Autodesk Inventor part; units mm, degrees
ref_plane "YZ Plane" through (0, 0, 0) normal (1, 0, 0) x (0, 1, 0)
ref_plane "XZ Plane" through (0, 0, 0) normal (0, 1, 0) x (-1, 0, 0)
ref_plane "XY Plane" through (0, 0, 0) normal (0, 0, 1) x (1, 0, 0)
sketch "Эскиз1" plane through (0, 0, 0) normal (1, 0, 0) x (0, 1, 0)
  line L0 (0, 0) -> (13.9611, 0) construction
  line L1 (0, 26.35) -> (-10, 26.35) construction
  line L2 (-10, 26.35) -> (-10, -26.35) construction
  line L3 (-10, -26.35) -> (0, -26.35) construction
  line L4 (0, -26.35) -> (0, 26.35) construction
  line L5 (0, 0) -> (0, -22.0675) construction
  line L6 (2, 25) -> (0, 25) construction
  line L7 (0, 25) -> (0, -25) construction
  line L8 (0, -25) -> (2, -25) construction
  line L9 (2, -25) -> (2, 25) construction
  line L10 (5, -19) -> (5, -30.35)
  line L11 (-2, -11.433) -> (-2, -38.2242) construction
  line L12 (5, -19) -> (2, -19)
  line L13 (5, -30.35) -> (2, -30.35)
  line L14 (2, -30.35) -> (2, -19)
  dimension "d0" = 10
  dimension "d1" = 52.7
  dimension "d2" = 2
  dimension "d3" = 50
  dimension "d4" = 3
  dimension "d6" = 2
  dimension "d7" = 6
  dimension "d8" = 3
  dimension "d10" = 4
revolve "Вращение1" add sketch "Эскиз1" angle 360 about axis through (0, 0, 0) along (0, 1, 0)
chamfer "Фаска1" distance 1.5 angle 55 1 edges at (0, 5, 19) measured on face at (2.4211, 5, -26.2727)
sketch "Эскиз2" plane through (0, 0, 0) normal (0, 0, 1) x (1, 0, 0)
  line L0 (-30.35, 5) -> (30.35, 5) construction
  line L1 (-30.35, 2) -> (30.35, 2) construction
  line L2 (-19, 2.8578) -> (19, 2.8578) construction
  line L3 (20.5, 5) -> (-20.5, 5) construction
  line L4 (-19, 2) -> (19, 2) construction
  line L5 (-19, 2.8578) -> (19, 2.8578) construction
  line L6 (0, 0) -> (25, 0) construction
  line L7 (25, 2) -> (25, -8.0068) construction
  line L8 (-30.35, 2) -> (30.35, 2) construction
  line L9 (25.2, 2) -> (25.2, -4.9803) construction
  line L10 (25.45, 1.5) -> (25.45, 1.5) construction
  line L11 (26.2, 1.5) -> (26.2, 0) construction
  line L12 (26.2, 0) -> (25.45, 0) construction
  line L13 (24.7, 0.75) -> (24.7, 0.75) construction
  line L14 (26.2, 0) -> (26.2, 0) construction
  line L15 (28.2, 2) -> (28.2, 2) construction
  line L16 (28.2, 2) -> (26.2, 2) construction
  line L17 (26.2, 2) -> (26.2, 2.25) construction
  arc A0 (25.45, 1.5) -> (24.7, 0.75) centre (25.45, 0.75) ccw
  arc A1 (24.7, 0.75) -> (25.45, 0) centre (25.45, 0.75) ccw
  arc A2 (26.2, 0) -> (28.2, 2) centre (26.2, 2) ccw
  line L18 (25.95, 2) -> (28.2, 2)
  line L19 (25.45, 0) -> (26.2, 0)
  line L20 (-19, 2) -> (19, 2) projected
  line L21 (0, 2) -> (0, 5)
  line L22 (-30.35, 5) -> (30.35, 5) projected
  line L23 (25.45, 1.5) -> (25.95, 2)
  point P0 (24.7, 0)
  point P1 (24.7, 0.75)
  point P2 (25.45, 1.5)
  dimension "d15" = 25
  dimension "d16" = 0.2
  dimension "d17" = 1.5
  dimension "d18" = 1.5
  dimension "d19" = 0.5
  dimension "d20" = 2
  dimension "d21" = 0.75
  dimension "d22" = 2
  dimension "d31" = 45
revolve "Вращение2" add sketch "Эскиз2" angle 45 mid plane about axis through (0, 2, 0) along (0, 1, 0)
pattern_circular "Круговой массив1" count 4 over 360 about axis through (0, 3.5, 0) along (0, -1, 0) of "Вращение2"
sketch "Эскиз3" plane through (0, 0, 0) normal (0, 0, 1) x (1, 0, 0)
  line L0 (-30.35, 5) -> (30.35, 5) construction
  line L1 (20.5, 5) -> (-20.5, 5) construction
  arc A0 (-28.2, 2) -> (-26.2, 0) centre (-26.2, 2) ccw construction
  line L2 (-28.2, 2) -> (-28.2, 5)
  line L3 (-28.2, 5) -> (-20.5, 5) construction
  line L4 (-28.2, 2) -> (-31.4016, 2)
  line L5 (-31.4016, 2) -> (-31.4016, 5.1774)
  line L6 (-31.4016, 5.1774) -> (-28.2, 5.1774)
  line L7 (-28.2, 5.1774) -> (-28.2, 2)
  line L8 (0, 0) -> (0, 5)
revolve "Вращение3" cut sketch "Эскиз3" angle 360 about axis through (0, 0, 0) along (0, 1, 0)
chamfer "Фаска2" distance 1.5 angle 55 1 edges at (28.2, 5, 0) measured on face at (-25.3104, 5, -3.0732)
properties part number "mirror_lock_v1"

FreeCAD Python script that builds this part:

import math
import FreeCAD as App
import Part
import Sketcher
from FreeCAD import Vector
Q = App.Units.Quantity


def edges_at(feature, points):
    """Names of the edges that pass closest to the given points."""
    edges = feature.Shape.Edges
    near = lambda p: min(range(len(edges)), key=lambda i: edges[i].distToShape(Part.Vertex(*p))[0])
    return sorted({f"Edge{near(p) + 1}" for p in points})


def add_polygon(sketch, points):
    """Adds a closed chain of lines whose ends are joined by coincident constraints."""
    first, n = sketch.GeometryCount, len(points)
    for a, b in zip(points, points[1:] + points[:1]):
        sketch.addGeometry(Part.LineSegment(App.Vector(*a, 0), App.Vector(*b, 0)), False)
    for i in range(n):
        sketch.addConstraint(Sketcher.Constraint("Coincident", first + i, 2, first + (i + 1) % n, 1))

doc = App.newDocument("Part")
params = doc.addObject("Spreadsheet::Sheet", "Params")
for row, (alias, value) in enumerate([
    ("sketch1_width", "3 mm"),
    ("sketch1_height", "11.35 mm"),
    ("revolution_angle", "360 deg"),
    ("chamfer_size", "1.5 mm"),
    ("sketch2_radius", "2 mm"),
    ("sketch2_radius2", "0.75 mm"),
    ("sketch2_width", "0.75 mm"),
    ("revolution2_angle", "45 deg"),
    ("groove_angle", "360 deg"),
    ("chamfer2_size", "1.5 mm"),
], start=1):
    params.set(f"A{row}", alias)
    params.set(f"B{row}", "=" + value)
    params.setAlias(f"B{row}", alias)

body = doc.addObject("PartDesign::Body", "Body")

# Sketch on YZ plane
sketch1 = body.newObject("Sketcher::SketchObject", "Sketch")
sketch1.AttachmentSupport = (doc.getObject("YZ_Plane"), [""])
sketch1.MapMode = "FlatFace"
add_polygon(sketch1, [(5, -30.4), (5, -19), (2, -19), (2, -30.4)])  # lines 0-3
sketch1.addConstraint(Sketcher.Constraint("Vertical", 0))
sketch1.addConstraint(Sketcher.Constraint("Horizontal", 1))
sketch1.addConstraint(Sketcher.Constraint("Vertical", 2))
sketch1.addConstraint(Sketcher.Constraint("Horizontal", 3))
sketch1.addConstraint(Sketcher.Constraint("DistanceX", 1, 2, 1, 1, Q("3 mm")))
sketch1.addConstraint(Sketcher.Constraint("DistanceX", -1, 1, 1, 2, Q("2 mm")))
sketch1.addConstraint(Sketcher.Constraint("DistanceY", 0, 2, -1, 1, Q("19 mm")))
sketch1.addConstraint(Sketcher.Constraint("DistanceY", 0, 1, 0, 2, Q("11.35 mm")))
sketch1.setExpression("Constraints[8]", "Params.sketch1_width")
sketch1.setExpression("Constraints[11]", "Params.sketch1_height")
revolution = body.newObject("PartDesign::Revolution", "Revolution")
revolution.Profile = sketch1
revolution.ReferenceAxis = (sketch1, ["H_Axis"])
revolution.setExpression("Angle", "Params.revolution_angle")
doc.recompute()

chamfer = body.newObject("PartDesign::Chamfer", "Chamfer")
chamfer.Base = (revolution, edges_at(revolution, [(0, 5, 19)]))
chamfer.ChamferType = "Distance and Angle"
chamfer.setExpression("Size", "Params.chamfer_size")
chamfer.Angle = 55

# Sketch on XY plane
sketch2 = body.newObject("Sketcher::SketchObject", "Sketch001")
sketch2.AttachmentSupport = (doc.getObject("XY_Plane"), [""])
sketch2.MapMode = "FlatFace"
sketch2.addGeometry(Part.LineSegment(Vector(25.9, 2, 0), Vector(25.4, 1.5, 0)), False)
sketch2.addGeometry(Part.ArcOfCircle(Part.Circle(Vector(25.4, 0.8, 0), Vector(0, 0, 1), 0.8), math.radians(90), math.radians(270)), False)
sketch2.addGeometry(Part.LineSegment(Vector(25.4, 0, 0), Vector(26.2, 0, 0)), False)
sketch2.addGeometry(Part.ArcOfCircle(Part.Circle(Vector(26.2, 2, 0), Vector(0, 0, 1), 2), math.radians(-90), math.radians(0)), False)
sketch2.addGeometry(Part.LineSegment(Vector(28.2, 2, 0), Vector(25.9, 2, 0)), False)
sketch2.addConstraint(Sketcher.Constraint("Coincident", 0, 2, 1, 1))
sketch2.addConstraint(Sketcher.Constraint("Tangent", 1, 2, 2, 1))
sketch2.addConstraint(Sketcher.Constraint("Tangent", 2, 2, 3, 1))
sketch2.addConstraint(Sketcher.Constraint("Coincident", 3, 2, 4, 1))
sketch2.addConstraint(Sketcher.Constraint("Coincident", 4, 2, 0, 1))
sketch2.addConstraint(Sketcher.Constraint("Horizontal", 2))
sketch2.addConstraint(Sketcher.Constraint("Horizontal", 4))
sketch2.addConstraint(Sketcher.Constraint("PointOnObject", 1, 2, -1))
sketch2.addConstraint(Sketcher.Constraint("Vertical", 1, 3, 0, 2))
sketch2.addConstraint(Sketcher.Constraint("Radius", 3, Q("2 mm")))
sketch2.addConstraint(Sketcher.Constraint("Radius", 1, Q("0.75 mm")))
sketch2.addConstraint(Sketcher.Constraint("DistanceY", -1, 1, 3, 2, Q("2 mm")))
sketch2.addConstraint(Sketcher.Constraint("DistanceX", 2, 1, 2, 2, Q("0.75 mm")))
sketch2.addConstraint(Sketcher.Constraint("DistanceX", 0, 2, 4, 2, Q("0.5 mm")))
sketch2.addConstraint(Sketcher.Constraint("DistanceX", -1, 1, 3, 3, Q("26.2 mm")))
sketch2.setExpression("Constraints[9]", "Params.sketch2_radius")
sketch2.setExpression("Constraints[10]", "Params.sketch2_radius2")
sketch2.setExpression("Constraints[12]", "Params.sketch2_width")
revolution2 = body.newObject("PartDesign::Revolution", "Revolution001")
revolution2.Profile = sketch2
revolution2.ReferenceAxis = (sketch2, ["V_Axis"])
revolution2.setExpression("Angle", "Params.revolution2_angle")
revolution2.Midplane = True
doc.recompute()

polarpattern = body.newObject("PartDesign::PolarPattern", "PolarPattern")
polarpattern.Originals = [revolution2]
polarpattern.Axis = (doc.getObject("Y_Axis"), [""])
polarpattern.Angle = 360
polarpattern.Occurrences = 4
body.Tip = polarpattern

# Sketch on XY plane
sketch3 = body.newObject("Sketcher::SketchObject", "Sketch002")
sketch3.AttachmentSupport = (doc.getObject("XY_Plane"), [""])
sketch3.MapMode = "FlatFace"
add_polygon(sketch3, [(-31.4, 2), (-28.2, 2), (-28.2, 5.2), (-31.4, 5.2)])  # lines 0-3
sketch3.addConstraint(Sketcher.Constraint("Horizontal", 0))
sketch3.addConstraint(Sketcher.Constraint("Vertical", 1))
sketch3.addConstraint(Sketcher.Constraint("Horizontal", 2))
sketch3.addConstraint(Sketcher.Constraint("Vertical", 3))
sketch3.addConstraint(Sketcher.Constraint("DistanceY", -1, 1, 0, 2, Q("2 mm")))
sketch3.addConstraint(Sketcher.Constraint("DistanceX", 0, 2, -1, 1, Q("28.2 mm")))
sketch3.addConstraint(Sketcher.Constraint("DistanceX", 0, 1, 0, 2, Q("3.2016 mm")))
sketch3.addConstraint(Sketcher.Constraint("DistanceY", 1, 1, 1, 2, Q("3.1774 mm")))
groove = body.newObject("PartDesign::Groove", "Groove")
groove.Profile = sketch3
groove.ReferenceAxis = (sketch3, ["V_Axis"])
groove.setExpression("Angle", "Params.groove_angle")
doc.recompute()

chamfer2 = body.newObject("PartDesign::Chamfer", "Chamfer001")
chamfer2.Base = (groove, edges_at(groove, [(28.2, 5, 0)]))
chamfer2.ChamferType = "Distance and Angle"
chamfer2.setExpression("Size", "Params.chamfer2_size")
chamfer2.Angle = 55
chamfer2.FlipDirection = True

doc.recompute()
